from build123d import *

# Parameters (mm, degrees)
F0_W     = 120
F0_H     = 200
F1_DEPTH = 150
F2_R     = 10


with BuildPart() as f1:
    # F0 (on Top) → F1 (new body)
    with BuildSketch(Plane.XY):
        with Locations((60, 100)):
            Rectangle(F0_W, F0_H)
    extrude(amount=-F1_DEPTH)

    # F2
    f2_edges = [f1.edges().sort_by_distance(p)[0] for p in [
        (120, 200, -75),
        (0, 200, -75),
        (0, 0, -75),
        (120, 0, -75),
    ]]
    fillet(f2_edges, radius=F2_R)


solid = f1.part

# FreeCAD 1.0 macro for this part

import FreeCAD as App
import Part
import Sketcher


def edges_at(feature, points):
    """Names of the edges that pass closest to the given points."""
    edges = feature.Shape.Edges
    near = lambda p: min(range(len(edges)), key=lambda i: edges[i].distToShape(Part.Vertex(*p))[0])
    return sorted({f"Edge{near(p) + 1}" for p in points})

doc = App.newDocument("Part")
body = doc.addObject("PartDesign::Body", "Body")

# Sketch on XY plane
sketch1 = body.newObject("Sketcher::SketchObject", "Sketch")
sketch1.AttachmentSupport = (doc.getObject("XY_Plane"), [""])
sketch1.MapMode = "FlatFace"
sketch1.addGeometry([
    Part.LineSegment(App.Vector(0, 200, 0), App.Vector(0, 0, 0)),
    Part.LineSegment(App.Vector(0, 0, 0), App.Vector(120, 0, 0)),
    Part.LineSegment(App.Vector(120, 0, 0), App.Vector(120, 200, 0)),
    Part.LineSegment(App.Vector(120, 200, 0), App.Vector(0, 200, 0)),
], False)
sketch1.addConstraint([
    Sketcher.Constraint("Coincident", 0, 2, 1, 1),
    Sketcher.Constraint("Coincident", 1, 2, 2, 1),
    Sketcher.Constraint("Coincident", 2, 2, 3, 1),
    Sketcher.Constraint("Coincident", 3, 2, 0, 1),
    Sketcher.Constraint("Vertical", 0),
    Sketcher.Constraint("Horizontal", 1),
    Sketcher.Constraint("Vertical", 2),
    Sketcher.Constraint("Horizontal", 3),
    Sketcher.Constraint("Coincident", 0, 2, -1, 1),
    Sketcher.Constraint("DistanceX", 1, 1, 1, 2, 120.0),
    Sketcher.Constraint("DistanceY", 0, 2, 0, 1, 200.0),
])
pad1 = body.newObject("PartDesign::Pad", "Pad")
pad1.Profile = sketch1
pad1.Length = 150
pad1.Reversed = True
doc.recompute()

fillet = body.newObject("PartDesign::Fillet", "Fillet")
fillet.Base = (pad1, edges_at(pad1, [
    (120, 200, -75),
    (0, 200, -75),
    (0, 0, -75),
    (120, 0, -75),
]))
fillet.Radius = 10

doc.recompute()
